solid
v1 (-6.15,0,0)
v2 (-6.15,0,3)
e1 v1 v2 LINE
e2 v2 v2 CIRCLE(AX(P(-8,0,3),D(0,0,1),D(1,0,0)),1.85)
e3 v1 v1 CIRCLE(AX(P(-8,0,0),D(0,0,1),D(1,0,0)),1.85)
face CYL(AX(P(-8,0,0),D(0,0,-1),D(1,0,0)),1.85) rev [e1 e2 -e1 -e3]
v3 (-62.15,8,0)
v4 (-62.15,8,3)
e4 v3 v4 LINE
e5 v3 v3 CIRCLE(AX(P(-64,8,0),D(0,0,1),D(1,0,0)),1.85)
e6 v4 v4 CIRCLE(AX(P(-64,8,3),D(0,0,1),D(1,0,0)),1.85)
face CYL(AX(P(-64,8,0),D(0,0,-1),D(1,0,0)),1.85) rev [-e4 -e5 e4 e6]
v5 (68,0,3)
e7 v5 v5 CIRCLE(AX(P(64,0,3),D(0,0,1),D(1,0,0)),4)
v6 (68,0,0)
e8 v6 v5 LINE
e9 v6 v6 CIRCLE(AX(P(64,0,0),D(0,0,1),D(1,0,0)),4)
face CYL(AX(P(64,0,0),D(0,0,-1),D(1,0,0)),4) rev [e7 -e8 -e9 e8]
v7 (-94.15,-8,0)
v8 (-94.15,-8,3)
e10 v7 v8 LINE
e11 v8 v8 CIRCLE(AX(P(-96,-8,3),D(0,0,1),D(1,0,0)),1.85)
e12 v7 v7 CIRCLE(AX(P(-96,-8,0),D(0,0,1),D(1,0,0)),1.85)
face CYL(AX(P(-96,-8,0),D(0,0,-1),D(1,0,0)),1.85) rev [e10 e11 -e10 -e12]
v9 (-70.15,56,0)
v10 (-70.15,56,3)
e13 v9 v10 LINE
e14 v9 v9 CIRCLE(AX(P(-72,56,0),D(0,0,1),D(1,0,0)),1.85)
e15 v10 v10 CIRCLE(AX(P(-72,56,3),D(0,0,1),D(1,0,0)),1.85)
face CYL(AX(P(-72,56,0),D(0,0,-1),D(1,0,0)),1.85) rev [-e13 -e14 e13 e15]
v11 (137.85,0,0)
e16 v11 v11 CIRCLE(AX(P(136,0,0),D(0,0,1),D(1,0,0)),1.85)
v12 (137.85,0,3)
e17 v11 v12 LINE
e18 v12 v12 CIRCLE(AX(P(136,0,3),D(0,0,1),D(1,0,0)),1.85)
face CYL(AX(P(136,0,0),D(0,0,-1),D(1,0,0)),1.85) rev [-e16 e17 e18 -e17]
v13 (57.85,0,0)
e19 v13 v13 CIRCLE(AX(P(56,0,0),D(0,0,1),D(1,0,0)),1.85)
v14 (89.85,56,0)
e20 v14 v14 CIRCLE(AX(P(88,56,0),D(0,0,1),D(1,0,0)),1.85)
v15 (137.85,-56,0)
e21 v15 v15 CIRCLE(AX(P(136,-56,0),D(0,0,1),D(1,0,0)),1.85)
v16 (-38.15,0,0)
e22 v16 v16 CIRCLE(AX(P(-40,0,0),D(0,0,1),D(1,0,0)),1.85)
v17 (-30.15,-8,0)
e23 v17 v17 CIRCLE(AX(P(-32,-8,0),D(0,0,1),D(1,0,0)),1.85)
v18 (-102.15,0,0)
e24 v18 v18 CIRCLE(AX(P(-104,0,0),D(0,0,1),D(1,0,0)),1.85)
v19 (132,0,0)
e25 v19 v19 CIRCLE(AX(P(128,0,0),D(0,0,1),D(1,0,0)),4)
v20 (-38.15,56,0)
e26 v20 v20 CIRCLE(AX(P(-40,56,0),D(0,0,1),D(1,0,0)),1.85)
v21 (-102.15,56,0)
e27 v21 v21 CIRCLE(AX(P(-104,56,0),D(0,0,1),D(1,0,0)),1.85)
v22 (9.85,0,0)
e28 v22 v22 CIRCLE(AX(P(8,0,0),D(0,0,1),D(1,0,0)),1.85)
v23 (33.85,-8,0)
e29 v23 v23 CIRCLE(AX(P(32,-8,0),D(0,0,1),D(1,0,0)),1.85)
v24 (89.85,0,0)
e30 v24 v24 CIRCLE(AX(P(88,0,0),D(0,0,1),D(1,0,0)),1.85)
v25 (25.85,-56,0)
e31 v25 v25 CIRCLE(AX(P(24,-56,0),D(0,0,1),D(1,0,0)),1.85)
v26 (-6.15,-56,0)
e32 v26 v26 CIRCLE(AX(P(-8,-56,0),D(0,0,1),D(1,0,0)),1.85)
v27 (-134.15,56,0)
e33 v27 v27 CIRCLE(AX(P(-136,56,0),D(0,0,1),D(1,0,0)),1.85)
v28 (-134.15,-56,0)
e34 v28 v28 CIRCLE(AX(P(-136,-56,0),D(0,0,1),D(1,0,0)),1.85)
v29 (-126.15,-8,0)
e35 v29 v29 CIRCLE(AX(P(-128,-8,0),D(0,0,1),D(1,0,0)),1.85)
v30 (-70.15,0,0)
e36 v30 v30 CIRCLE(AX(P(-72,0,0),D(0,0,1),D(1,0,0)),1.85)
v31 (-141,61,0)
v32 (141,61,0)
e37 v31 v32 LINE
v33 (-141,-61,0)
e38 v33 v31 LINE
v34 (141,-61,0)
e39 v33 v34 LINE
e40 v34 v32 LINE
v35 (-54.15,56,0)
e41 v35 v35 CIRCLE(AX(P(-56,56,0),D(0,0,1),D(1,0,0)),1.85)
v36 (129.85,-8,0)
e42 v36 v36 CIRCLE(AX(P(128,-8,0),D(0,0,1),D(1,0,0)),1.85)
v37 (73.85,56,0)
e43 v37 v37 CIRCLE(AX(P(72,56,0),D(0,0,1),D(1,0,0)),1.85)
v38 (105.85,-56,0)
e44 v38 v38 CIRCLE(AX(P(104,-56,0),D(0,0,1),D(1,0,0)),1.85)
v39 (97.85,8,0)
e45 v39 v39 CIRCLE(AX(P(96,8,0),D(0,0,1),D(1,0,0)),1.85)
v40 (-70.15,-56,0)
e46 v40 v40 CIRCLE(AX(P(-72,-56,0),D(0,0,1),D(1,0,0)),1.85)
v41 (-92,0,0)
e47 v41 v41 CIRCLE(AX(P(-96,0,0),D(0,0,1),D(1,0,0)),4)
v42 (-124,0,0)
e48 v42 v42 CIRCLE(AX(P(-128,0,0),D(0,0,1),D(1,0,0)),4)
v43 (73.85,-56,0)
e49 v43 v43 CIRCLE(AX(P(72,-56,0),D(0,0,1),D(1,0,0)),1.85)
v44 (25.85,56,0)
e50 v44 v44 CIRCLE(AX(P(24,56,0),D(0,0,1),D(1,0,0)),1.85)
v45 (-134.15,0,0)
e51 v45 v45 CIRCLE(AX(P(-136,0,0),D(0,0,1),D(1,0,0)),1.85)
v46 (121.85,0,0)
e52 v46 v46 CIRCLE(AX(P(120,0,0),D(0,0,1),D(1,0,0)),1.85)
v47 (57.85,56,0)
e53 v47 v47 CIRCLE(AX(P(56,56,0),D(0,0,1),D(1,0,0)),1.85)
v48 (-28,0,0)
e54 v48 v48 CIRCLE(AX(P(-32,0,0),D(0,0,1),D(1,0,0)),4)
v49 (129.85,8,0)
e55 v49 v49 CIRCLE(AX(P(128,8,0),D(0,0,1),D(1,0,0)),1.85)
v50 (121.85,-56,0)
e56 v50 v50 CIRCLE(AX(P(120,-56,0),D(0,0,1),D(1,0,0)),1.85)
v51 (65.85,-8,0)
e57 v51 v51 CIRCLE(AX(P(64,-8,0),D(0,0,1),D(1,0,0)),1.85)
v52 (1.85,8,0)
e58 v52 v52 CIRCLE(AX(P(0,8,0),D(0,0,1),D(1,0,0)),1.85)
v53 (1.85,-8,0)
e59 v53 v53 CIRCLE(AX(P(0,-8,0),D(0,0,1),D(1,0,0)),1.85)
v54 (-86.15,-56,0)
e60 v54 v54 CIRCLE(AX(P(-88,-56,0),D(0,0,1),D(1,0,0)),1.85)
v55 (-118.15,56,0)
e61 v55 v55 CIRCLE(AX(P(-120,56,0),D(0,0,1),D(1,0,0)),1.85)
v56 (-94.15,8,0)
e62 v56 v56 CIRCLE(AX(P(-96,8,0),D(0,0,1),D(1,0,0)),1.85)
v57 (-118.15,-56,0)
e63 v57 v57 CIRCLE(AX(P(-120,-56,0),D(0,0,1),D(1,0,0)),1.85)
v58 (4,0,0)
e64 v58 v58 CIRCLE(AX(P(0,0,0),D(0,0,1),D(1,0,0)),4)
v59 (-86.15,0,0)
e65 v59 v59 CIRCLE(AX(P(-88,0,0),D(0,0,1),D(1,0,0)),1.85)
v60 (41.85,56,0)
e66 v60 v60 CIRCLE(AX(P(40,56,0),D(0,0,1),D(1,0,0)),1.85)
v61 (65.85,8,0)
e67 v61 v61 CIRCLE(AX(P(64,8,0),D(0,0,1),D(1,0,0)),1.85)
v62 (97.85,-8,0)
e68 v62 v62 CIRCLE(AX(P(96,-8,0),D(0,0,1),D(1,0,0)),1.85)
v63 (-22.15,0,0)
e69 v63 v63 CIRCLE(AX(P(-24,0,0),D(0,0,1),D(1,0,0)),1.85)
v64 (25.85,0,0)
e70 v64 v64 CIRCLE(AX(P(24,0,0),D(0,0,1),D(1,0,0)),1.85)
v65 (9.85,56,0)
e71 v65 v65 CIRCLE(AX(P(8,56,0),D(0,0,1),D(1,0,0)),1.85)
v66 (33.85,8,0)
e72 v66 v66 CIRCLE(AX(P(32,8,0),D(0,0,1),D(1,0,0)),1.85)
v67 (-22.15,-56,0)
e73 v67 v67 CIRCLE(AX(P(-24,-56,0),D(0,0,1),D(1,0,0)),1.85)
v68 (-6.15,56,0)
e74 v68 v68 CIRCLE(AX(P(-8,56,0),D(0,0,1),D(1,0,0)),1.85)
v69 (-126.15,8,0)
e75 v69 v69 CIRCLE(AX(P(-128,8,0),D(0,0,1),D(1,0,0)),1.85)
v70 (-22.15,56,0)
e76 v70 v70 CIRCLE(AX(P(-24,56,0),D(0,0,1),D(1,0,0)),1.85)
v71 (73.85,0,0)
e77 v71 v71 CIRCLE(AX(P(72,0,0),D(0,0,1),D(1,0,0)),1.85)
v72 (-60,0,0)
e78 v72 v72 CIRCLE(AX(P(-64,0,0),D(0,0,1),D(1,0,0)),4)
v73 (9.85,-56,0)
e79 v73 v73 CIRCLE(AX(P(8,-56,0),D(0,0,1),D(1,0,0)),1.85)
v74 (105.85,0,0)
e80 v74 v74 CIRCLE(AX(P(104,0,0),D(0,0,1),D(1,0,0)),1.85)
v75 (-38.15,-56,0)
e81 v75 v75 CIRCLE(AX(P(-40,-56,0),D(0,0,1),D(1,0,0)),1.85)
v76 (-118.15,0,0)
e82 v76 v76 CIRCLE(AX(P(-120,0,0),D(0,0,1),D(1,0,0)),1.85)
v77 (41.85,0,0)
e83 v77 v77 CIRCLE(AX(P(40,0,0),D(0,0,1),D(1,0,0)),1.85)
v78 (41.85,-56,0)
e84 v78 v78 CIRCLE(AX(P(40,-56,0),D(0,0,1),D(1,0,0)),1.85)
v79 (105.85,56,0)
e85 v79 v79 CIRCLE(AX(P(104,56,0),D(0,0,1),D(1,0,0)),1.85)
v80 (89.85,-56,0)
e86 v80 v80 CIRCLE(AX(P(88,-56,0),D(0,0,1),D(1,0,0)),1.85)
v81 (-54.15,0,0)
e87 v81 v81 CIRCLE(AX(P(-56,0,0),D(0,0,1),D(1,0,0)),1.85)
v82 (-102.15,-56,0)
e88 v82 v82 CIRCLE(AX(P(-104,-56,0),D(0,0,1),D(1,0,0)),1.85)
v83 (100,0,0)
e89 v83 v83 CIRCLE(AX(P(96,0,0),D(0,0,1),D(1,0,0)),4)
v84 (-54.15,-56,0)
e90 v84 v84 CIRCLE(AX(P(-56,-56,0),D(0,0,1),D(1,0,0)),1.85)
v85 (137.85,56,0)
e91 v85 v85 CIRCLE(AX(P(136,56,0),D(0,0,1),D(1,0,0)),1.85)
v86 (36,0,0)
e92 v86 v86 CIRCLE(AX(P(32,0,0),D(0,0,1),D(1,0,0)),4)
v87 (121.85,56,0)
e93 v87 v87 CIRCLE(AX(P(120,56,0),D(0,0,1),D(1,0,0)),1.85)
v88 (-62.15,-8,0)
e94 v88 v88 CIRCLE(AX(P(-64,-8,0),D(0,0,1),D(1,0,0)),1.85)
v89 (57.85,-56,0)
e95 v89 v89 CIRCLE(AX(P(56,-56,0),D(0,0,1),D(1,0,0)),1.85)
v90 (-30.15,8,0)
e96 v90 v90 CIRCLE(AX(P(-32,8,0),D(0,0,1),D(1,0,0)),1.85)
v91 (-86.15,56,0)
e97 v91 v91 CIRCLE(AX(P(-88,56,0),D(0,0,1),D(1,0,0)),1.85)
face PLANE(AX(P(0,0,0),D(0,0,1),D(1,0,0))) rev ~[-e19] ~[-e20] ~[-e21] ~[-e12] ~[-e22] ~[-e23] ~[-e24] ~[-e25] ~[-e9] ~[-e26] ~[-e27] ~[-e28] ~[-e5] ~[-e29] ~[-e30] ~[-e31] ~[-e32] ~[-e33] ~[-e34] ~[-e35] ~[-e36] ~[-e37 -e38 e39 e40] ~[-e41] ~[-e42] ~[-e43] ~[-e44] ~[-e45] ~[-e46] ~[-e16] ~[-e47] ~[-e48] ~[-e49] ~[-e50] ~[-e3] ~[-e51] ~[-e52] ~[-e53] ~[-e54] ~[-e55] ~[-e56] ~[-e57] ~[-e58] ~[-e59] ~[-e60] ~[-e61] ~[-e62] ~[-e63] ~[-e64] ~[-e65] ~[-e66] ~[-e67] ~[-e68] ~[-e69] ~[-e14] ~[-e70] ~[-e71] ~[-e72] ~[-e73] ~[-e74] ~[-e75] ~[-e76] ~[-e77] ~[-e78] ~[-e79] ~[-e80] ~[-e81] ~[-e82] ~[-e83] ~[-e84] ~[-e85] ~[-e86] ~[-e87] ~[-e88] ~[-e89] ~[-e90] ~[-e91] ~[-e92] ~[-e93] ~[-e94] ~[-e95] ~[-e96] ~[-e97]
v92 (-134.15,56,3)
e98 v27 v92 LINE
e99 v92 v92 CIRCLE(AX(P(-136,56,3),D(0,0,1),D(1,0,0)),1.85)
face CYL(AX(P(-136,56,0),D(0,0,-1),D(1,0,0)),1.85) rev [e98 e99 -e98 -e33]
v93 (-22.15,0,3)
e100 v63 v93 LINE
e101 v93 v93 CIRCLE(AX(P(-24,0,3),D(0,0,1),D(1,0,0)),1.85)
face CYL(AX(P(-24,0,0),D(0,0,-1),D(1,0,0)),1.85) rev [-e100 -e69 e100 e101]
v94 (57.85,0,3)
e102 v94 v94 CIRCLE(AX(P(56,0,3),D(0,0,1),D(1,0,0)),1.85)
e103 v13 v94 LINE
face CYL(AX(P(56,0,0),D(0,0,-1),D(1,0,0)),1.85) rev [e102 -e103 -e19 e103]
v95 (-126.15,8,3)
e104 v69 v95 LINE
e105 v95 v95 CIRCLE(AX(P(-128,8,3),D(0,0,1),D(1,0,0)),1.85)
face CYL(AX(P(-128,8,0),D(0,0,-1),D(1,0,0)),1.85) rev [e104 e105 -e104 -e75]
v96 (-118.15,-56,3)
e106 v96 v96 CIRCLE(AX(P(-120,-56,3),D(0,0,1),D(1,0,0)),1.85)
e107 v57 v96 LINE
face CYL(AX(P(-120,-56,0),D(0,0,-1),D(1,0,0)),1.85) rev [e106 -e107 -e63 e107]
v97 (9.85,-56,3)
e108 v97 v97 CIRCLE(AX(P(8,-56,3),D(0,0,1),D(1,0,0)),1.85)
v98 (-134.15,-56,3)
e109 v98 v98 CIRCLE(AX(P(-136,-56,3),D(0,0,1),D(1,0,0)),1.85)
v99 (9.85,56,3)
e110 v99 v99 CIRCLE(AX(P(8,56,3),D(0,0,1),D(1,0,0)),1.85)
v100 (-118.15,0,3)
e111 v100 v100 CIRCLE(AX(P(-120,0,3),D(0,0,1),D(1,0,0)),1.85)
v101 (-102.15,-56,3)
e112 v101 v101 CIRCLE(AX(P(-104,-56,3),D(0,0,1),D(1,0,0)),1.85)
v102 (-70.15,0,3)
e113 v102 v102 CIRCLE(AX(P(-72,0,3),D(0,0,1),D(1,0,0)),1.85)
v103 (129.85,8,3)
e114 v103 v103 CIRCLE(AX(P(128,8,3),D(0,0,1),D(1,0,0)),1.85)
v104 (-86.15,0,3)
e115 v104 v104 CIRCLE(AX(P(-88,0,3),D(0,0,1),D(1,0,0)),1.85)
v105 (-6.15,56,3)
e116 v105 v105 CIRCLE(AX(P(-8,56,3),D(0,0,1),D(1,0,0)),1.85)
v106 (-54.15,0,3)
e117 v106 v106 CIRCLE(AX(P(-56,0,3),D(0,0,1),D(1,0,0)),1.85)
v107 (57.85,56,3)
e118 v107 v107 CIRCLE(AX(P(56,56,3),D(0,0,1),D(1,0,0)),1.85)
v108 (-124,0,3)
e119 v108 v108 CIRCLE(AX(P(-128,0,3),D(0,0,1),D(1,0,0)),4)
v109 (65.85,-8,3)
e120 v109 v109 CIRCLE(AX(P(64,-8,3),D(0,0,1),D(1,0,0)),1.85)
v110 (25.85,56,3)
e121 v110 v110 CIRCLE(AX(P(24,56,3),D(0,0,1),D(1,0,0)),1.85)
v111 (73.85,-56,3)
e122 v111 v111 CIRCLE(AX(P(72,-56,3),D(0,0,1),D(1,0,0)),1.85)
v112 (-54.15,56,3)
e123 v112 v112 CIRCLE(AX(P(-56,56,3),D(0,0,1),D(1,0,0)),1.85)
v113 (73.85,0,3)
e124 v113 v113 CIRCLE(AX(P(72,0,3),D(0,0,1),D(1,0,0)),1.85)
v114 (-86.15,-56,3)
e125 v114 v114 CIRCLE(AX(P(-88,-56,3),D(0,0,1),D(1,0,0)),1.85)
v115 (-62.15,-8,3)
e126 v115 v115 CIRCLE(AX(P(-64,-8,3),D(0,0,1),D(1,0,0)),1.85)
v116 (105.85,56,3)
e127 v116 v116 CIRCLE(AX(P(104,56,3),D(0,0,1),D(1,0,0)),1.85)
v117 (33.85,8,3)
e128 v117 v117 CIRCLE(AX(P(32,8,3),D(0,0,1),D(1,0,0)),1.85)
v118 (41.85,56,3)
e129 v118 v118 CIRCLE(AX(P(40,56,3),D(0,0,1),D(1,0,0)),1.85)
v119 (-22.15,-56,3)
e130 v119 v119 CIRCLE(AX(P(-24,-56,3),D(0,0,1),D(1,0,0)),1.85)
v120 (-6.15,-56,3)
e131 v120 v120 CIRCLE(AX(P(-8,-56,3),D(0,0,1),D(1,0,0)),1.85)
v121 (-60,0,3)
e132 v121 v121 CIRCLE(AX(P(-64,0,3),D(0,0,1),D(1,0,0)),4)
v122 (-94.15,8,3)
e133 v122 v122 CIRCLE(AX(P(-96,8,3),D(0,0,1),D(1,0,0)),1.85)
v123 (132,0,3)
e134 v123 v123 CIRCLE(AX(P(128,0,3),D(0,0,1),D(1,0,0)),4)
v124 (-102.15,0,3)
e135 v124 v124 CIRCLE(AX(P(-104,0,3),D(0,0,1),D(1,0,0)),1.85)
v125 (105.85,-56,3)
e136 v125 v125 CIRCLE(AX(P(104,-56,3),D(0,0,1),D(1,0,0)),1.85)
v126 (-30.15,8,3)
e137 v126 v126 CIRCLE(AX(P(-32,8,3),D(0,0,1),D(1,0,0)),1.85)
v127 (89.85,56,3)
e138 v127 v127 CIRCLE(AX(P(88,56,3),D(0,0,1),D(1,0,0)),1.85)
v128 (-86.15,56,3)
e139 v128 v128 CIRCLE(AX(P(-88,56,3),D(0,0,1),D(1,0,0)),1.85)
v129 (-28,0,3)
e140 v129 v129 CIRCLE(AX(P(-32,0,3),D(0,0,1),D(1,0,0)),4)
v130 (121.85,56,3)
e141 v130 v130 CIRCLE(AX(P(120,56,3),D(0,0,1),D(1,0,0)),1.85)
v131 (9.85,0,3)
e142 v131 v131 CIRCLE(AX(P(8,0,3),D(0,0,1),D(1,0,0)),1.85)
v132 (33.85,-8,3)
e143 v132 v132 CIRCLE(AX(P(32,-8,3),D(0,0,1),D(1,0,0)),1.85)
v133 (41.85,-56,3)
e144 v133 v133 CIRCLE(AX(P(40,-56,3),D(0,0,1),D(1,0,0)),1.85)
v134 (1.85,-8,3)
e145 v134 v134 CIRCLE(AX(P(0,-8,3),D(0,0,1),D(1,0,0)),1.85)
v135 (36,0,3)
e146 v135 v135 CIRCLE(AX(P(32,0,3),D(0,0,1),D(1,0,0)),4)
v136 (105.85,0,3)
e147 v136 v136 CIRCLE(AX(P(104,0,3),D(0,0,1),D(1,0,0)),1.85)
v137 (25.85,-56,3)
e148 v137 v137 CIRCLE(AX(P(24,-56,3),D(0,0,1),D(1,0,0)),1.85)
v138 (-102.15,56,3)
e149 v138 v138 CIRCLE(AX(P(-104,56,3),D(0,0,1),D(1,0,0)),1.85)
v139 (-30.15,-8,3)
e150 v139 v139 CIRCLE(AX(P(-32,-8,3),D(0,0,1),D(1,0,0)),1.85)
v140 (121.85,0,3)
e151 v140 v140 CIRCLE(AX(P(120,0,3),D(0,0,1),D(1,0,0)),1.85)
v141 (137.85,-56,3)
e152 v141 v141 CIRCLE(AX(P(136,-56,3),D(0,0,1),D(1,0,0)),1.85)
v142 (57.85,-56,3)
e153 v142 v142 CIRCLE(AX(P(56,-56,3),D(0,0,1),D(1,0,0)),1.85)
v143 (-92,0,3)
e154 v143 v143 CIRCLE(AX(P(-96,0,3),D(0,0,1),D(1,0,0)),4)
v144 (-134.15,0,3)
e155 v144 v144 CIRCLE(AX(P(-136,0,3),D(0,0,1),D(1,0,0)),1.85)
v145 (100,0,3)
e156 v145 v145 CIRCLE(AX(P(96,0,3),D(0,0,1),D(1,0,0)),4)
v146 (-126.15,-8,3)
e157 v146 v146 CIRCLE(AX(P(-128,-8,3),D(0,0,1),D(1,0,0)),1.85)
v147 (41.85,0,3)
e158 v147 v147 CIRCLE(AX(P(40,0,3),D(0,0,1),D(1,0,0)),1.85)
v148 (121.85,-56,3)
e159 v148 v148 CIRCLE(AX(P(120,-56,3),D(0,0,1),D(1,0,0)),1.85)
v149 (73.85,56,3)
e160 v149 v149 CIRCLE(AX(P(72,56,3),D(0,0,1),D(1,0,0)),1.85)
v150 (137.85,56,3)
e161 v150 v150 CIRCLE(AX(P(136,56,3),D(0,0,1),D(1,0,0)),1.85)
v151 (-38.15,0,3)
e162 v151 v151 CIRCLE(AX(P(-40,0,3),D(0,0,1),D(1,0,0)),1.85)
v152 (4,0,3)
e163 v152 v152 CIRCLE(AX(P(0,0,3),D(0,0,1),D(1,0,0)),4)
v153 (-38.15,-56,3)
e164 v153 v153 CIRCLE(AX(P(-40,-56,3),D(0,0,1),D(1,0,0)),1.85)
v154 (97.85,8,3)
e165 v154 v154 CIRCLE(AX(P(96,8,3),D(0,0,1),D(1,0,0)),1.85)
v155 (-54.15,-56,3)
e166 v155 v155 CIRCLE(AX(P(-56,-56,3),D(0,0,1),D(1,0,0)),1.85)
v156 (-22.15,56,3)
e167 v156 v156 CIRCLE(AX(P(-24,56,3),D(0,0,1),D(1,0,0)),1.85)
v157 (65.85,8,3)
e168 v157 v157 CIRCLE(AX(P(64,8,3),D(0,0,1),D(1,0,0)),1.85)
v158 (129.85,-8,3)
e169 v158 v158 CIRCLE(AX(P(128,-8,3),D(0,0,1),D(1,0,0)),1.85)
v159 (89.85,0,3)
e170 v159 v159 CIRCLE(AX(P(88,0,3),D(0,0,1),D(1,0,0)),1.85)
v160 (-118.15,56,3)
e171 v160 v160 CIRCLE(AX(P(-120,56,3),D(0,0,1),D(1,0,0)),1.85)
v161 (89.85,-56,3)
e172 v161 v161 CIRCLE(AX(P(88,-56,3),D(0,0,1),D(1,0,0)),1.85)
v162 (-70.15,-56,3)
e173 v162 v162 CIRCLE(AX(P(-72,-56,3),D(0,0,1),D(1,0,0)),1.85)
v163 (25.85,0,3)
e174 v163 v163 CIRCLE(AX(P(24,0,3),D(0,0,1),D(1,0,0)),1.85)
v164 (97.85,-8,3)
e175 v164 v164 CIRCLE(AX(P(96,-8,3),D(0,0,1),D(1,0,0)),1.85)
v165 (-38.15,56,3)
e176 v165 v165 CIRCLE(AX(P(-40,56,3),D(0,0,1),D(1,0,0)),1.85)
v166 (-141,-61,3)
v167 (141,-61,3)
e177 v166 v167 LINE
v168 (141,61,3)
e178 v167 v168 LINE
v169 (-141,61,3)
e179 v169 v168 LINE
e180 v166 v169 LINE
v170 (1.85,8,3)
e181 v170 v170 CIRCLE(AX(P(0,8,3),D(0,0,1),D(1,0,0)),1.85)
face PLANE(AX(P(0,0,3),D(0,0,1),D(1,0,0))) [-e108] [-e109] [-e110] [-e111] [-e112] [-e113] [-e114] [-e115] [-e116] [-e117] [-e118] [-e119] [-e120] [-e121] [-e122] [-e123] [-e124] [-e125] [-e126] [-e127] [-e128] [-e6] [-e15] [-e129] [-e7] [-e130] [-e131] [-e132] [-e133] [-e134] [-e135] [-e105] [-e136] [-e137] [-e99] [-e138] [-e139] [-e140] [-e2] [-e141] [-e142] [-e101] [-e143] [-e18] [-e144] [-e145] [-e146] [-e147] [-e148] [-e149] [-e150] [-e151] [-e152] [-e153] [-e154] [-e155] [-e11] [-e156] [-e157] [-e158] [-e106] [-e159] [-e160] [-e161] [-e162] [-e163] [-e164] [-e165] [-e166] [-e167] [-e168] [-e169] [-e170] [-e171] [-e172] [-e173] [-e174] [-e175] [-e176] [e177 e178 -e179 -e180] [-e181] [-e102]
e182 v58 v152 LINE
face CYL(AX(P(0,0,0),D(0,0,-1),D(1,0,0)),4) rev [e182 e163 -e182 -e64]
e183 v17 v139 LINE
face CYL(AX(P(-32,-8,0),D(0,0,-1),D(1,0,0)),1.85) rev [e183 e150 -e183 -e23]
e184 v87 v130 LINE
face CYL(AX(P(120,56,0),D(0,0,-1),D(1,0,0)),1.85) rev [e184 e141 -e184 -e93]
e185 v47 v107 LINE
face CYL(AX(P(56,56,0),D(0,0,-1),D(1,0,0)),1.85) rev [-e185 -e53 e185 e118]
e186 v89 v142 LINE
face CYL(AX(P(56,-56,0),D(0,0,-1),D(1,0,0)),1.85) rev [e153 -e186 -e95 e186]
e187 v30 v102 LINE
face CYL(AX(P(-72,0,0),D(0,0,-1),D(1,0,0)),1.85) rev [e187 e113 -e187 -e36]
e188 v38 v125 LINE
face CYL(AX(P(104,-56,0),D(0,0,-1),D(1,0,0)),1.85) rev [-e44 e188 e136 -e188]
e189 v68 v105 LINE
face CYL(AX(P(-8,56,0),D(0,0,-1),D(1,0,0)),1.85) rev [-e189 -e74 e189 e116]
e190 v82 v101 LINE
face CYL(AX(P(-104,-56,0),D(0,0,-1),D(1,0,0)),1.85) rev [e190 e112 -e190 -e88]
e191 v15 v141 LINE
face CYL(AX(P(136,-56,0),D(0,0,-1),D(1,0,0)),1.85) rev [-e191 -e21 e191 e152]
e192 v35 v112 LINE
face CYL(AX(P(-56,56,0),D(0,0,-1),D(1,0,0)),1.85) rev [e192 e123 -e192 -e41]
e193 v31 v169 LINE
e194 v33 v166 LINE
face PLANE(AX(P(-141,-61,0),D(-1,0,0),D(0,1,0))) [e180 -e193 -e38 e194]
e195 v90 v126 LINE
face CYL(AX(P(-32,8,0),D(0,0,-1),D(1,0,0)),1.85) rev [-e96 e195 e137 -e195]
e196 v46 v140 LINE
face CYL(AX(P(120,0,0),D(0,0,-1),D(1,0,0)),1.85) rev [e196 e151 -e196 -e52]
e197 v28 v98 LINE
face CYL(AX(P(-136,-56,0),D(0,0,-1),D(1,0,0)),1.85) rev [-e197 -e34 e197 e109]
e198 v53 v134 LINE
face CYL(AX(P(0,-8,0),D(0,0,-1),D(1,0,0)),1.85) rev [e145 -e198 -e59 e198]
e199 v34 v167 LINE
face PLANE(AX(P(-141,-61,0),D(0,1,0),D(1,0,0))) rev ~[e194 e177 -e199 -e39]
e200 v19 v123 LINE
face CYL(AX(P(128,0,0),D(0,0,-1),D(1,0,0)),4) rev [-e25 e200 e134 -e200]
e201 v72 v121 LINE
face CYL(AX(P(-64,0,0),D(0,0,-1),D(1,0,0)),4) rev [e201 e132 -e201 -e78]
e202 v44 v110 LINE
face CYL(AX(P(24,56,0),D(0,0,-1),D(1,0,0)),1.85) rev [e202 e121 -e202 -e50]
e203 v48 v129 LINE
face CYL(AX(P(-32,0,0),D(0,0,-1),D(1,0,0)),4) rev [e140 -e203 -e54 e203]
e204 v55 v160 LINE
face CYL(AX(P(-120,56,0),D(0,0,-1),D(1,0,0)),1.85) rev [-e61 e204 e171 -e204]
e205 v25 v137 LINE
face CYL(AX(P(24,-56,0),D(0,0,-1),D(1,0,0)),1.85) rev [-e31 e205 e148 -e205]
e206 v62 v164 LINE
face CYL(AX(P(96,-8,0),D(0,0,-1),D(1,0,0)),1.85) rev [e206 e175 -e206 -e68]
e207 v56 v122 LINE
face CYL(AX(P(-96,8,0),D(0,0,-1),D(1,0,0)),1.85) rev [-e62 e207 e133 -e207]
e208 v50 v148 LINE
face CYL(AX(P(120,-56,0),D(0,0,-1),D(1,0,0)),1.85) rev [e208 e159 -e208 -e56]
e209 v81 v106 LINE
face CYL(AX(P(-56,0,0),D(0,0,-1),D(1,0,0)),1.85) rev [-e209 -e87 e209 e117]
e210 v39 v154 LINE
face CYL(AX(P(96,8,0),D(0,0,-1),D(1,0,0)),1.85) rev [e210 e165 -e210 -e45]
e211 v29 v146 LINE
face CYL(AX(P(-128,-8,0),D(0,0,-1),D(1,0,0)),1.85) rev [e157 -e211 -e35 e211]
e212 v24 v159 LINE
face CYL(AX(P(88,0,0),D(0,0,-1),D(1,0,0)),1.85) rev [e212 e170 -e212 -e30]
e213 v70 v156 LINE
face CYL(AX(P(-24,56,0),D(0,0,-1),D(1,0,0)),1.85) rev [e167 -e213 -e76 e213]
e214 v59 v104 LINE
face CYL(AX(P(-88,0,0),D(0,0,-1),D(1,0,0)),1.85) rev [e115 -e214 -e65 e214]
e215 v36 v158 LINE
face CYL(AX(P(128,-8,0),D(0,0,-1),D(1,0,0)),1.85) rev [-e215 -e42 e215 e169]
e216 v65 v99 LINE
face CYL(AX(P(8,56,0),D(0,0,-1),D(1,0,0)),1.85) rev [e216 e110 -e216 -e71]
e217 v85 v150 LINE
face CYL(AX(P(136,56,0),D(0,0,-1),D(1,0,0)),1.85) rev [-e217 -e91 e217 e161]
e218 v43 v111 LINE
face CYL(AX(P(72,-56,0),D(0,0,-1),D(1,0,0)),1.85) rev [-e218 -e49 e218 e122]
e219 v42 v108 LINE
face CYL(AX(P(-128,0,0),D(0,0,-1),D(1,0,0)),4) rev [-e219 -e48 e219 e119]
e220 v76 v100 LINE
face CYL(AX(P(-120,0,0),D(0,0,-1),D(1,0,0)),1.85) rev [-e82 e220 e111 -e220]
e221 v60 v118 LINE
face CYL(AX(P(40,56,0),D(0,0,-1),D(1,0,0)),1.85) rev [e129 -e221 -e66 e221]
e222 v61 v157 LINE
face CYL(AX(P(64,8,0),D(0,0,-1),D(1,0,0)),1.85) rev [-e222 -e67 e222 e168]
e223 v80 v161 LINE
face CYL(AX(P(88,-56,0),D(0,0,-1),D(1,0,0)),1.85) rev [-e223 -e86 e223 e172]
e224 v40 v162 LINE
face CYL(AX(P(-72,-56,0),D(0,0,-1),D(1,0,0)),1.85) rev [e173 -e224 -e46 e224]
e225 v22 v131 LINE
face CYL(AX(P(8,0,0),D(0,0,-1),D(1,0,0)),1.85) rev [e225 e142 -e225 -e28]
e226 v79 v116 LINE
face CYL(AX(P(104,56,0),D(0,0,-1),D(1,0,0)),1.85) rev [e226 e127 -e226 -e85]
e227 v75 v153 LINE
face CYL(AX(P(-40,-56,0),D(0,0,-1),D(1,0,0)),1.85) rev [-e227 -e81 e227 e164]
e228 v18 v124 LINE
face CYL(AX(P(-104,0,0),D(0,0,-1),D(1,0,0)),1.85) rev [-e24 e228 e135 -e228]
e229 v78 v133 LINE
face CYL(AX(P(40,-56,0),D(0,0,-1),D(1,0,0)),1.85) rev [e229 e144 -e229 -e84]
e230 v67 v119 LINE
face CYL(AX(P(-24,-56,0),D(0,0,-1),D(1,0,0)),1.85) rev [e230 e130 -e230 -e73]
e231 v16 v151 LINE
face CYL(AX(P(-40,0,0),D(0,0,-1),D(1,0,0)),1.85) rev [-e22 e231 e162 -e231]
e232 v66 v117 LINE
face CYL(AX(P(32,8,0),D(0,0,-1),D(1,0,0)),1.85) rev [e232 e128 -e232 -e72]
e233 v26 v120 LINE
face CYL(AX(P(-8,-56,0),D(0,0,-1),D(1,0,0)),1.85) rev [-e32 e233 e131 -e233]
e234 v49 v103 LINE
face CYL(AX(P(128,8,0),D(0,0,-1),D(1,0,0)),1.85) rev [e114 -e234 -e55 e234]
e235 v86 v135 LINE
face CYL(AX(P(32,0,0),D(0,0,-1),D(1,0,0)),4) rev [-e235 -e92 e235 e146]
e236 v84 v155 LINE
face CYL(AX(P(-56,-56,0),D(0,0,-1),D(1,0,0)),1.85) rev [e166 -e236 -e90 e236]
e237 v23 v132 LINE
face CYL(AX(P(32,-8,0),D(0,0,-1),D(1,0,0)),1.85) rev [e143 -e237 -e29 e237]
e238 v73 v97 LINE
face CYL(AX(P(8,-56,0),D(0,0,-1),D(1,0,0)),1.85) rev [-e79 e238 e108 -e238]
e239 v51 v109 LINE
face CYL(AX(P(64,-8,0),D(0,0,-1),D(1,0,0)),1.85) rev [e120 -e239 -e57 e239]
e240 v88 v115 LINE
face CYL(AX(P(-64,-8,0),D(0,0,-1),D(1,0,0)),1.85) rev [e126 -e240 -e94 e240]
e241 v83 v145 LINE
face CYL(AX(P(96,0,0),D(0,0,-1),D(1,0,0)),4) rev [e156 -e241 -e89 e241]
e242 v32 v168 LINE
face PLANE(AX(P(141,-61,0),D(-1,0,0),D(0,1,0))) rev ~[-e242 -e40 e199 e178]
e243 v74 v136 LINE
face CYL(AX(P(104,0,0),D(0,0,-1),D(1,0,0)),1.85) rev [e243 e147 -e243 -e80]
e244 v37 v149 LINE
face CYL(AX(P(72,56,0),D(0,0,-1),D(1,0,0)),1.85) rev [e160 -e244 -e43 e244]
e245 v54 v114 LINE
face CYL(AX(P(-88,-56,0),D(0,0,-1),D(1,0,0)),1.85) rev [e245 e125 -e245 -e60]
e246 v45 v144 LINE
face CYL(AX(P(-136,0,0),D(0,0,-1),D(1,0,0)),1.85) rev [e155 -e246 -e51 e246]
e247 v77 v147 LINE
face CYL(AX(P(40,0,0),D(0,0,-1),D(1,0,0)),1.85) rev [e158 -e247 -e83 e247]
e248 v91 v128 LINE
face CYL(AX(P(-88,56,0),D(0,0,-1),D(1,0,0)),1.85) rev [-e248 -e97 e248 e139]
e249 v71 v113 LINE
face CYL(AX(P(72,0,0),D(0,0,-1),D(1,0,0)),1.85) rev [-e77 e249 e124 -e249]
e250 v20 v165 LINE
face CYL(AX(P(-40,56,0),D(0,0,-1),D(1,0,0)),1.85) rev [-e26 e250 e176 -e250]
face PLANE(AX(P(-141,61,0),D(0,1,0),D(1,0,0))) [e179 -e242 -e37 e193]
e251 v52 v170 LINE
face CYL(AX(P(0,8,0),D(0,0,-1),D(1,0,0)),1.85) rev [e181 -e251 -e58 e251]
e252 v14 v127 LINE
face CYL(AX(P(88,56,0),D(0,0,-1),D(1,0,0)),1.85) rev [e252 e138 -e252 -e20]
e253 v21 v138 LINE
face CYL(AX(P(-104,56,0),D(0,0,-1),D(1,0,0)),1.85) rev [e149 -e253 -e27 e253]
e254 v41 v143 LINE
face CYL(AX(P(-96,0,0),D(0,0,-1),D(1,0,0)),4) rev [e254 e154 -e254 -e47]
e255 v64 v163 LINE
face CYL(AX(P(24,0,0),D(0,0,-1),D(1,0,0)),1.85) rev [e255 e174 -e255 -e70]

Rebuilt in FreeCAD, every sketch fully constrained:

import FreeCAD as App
import Part
import Sketcher

V = App.Vector

doc = App.newDocument("Part")
body = doc.addObject("PartDesign::Body", "Body")

# Sketch on XY plane
sketch1 = doc.addObject("Sketcher::SketchObject", "Sketch")
body.addObject(sketch1)
sketch1.AttachmentSupport = (doc.XY_Plane, [""])
sketch1.MapMode = "FlatFace"
sketch1.addGeometry(Part.LineSegment(V(-141, 61, 0), V(-141, -61, 0)), False)
sketch1.addGeometry(Part.LineSegment(V(-141, -61, 0), V(141, -61, 0)), False)
sketch1.addGeometry(Part.LineSegment(V(141, -61, 0), V(141, 61, 0)), False)
sketch1.addGeometry(Part.LineSegment(V(141, 61, 0), V(-141, 61, 0)), False)
sketch1.addGeometry(Part.Circle(V(-136, -56, 0), V(0, 0, 1), 1.9), False)
sketch1.addGeometry(Part.Circle(V(-120, -56, 0), V(0, 0, 1), 1.9), False)
sketch1.addGeometry(Part.Circle(V(-104, -56, 0), V(0, 0, 1), 1.9), False)
sketch1.addGeometry(Part.Circle(V(-88, -56, 0), V(0, 0, 1), 1.9), False)
sketch1.addGeometry(Part.Circle(V(-72, -56, 0), V(0, 0, 1), 1.9), False)
sketch1.addGeometry(Part.Circle(V(-56, -56, 0), V(0, 0, 1), 1.9), False)
sketch1.addGeometry(Part.Circle(V(-40, -56, 0), V(0, 0, 1), 1.9), False)
sketch1.addGeometry(Part.Circle(V(-24, -56, 0), V(0, 0, 1), 1.9), False)
sketch1.addGeometry(Part.Circle(V(-8, -56, 0), V(0, 0, 1), 1.9), False)
sketch1.addGeometry(Part.Circle(V(-128, -8, 0), V(0, 0, 1), 1.9), False)
sketch1.addGeometry(Part.Circle(V(-136, 0, 0), V(0, 0, 1), 1.9), False)
sketch1.addGeometry(Part.Circle(V(-128, 0, 0), V(0, 0, 1), 4), False)
sketch1.addGeometry(Part.Circle(V(-120, 0, 0), V(0, 0, 1), 1.9), False)
sketch1.addGeometry(Part.Circle(V(-104, 0, 0), V(0, 0, 1), 1.9), False)
sketch1.addGeometry(Part.Circle(V(-96, -8, 0), V(0, 0, 1), 1.9), False)
sketch1.addGeometry(Part.Circle(V(-96, 0, 0), V(0, 0, 1), 4), False)
sketch1.addGeometry(Part.Circle(V(-88, 0, 0), V(0, 0, 1), 1.9), False)
sketch1.addGeometry(Part.Circle(V(-72, 0, 0), V(0, 0, 1), 1.9), False)
sketch1.addGeometry(Part.Circle(V(-64, -8, 0), V(0, 0, 1), 1.9), False)
sketch1.addGeometry(Part.Circle(V(-64, 0, 0), V(0, 0, 1), 4), False)
sketch1.addGeometry(Part.Circle(V(-56, 0, 0), V(0, 0, 1), 1.9), False)
sketch1.addGeometry(Part.Circle(V(-40, 0, 0), V(0, 0, 1), 1.9), False)
sketch1.addGeometry(Part.Circle(V(-32, -8, 0), V(0, 0, 1), 1.9), False)
sketch1.addGeometry(Part.Circle(V(-32, 0, 0), V(0, 0, 1), 4), False)
sketch1.addGeometry(Part.Circle(V(-24, 0, 0), V(0, 0, 1), 1.9), False)
sketch1.addGeometry(Part.Circle(V(-8, 0, 0), V(0, 0, 1), 1.9), False)
sketch1.addGeometry(Part.Circle(V(8, -56, 0), V(0, 0, 1), 1.9), False)
sketch1.addGeometry(Part.Circle(V(24, -56, 0), V(0, 0, 1), 1.9), False)
sketch1.addGeometry(Part.Circle(V(40, -56, 0), V(0, 0, 1), 1.9), False)
sketch1.addGeometry(Part.Circle(V(56, -56, 0), V(0, 0, 1), 1.9), False)
sketch1.addGeometry(Part.Circle(V(72, -56, 0), V(0, 0, 1), 1.9), False)
sketch1.addGeometry(Part.Circle(V(88, -56, 0), V(0, 0, 1), 1.9), False)
sketch1.addGeometry(Part.Circle(V(104, -56, 0), V(0, 0, 1), 1.9), False)
sketch1.addGeometry(Part.Circle(V(120, -56, 0), V(0, 0, 1), 1.9), False)
sketch1.addGeometry(Part.Circle(V(136, -56, 0), V(0, 0, 1), 1.9), False)
sketch1.addGeometry(Part.Circle(V(0, -8, 0), V(0, 0, 1), 1.9), False)
sketch1.addGeometry(Part.Circle(V(32, -8, 0), V(0, 0, 1), 1.9), False)
sketch1.addGeometry(Part.Circle(V(0, 0, 0), V(0, 0, 1), 4), False)
sketch1.addGeometry(Part.Circle(V(8, 0, 0), V(0, 0, 1), 1.9), False)
sketch1.addGeometry(Part.Circle(V(24, 0, 0), V(0, 0, 1), 1.9), False)
sketch1.addGeometry(Part.Circle(V(32, 0, 0), V(0, 0, 1), 4), False)
sketch1.addGeometry(Part.Circle(V(64, -8, 0), V(0, 0, 1), 1.9), False)
sketch1.addGeometry(Part.Circle(V(40, 0, 0), V(0, 0, 1), 1.9), False)
sketch1.addGeometry(Part.Circle(V(56, 0, 0), V(0, 0, 1), 1.9), False)
sketch1.addGeometry(Part.Circle(V(64, 0, 0), V(0, 0, 1), 4), False)
sketch1.addGeometry(Part.Circle(V(96, -8, 0), V(0, 0, 1), 1.9), False)
sketch1.addGeometry(Part.Circle(V(72, 0, 0), V(0, 0, 1), 1.9), False)
sketch1.addGeometry(Part.Circle(V(88, 0, 0), V(0, 0, 1), 1.9), False)
sketch1.addGeometry(Part.Circle(V(96, 0, 0), V(0, 0, 1), 4), False)
sketch1.addGeometry(Part.Circle(V(128, -8, 0), V(0, 0, 1), 1.9), False)
sketch1.addGeometry(Part.Circle(V(104, 0, 0), V(0, 0, 1), 1.9), False)
sketch1.addGeometry(Part.Circle(V(120, 0, 0), V(0, 0, 1), 1.9), False)
sketch1.addGeometry(Part.Circle(V(128, 0, 0), V(0, 0, 1), 4), False)
sketch1.addGeometry(Part.Circle(V(136, 0, 0), V(0, 0, 1), 1.9), False)
sketch1.addGeometry(Part.Circle(V(-128, 8, 0), V(0, 0, 1), 1.9), False)
sketch1.addGeometry(Part.Circle(V(-96, 8, 0), V(0, 0, 1), 1.9), False)
sketch1.addGeometry(Part.Circle(V(-64, 8, 0), V(0, 0, 1), 1.9), False)
sketch1.addGeometry(Part.Circle(V(-32, 8, 0), V(0, 0, 1), 1.9), False)
sketch1.addGeometry(Part.Circle(V(-136, 56, 0), V(0, 0, 1), 1.9), False)
sketch1.addGeometry(Part.Circle(V(-120, 56, 0), V(0, 0, 1), 1.9), False)
sketch1.addGeometry(Part.Circle(V(-104, 56, 0), V(0, 0, 1), 1.9), False)
sketch1.addGeometry(Part.Circle(V(-88, 56, 0), V(0, 0, 1), 1.9), False)
sketch1.addGeometry(Part.Circle(V(-72, 56, 0), V(0, 0, 1), 1.9), False)
sketch1.addGeometry(Part.Circle(V(-56, 56, 0), V(0, 0, 1), 1.9), False)
sketch1.addGeometry(Part.Circle(V(-40, 56, 0), V(0, 0, 1), 1.9), False)
sketch1.addGeometry(Part.Circle(V(-24, 56, 0), V(0, 0, 1), 1.9), False)
sketch1.addGeometry(Part.Circle(V(-8, 56, 0), V(0, 0, 1), 1.9), False)
sketch1.addGeometry(Part.Circle(V(0, 8, 0), V(0, 0, 1), 1.9), False)
sketch1.addGeometry(Part.Circle(V(32, 8, 0), V(0, 0, 1), 1.9), False)
sketch1.addGeometry(Part.Circle(V(64, 8, 0), V(0, 0, 1), 1.9), False)
sketch1.addGeometry(Part.Circle(V(96, 8, 0), V(0, 0, 1), 1.9), False)
sketch1.addGeometry(Part.Circle(V(128, 8, 0), V(0, 0, 1), 1.9), False)
sketch1.addGeometry(Part.Circle(V(8, 56, 0), V(0, 0, 1), 1.9), False)
sketch1.addGeometry(Part.Circle(V(24, 56, 0), V(0, 0, 1), 1.9), False)
sketch1.addGeometry(Part.Circle(V(40, 56, 0), V(0, 0, 1), 1.9), False)
sketch1.addGeometry(Part.Circle(V(56, 56, 0), V(0, 0, 1), 1.9), False)
sketch1.addGeometry(Part.Circle(V(72, 56, 0), V(0, 0, 1), 1.9), False)
sketch1.addGeometry(Part.Circle(V(88, 56, 0), V(0, 0, 1), 1.9), False)
sketch1.addGeometry(Part.Circle(V(104, 56, 0), V(0, 0, 1), 1.9), False)
sketch1.addGeometry(Part.Circle(V(120, 56, 0), V(0, 0, 1), 1.9), False)
sketch1.addGeometry(Part.Circle(V(136, 56, 0), V(0, 0, 1), 1.9), False)
sketch1.addConstraint(Sketcher.Constraint("Coincident", 0, 2, 1, 1))
sketch1.addConstraint(Sketcher.Constraint("Coincident", 1, 2, 2, 1))
sketch1.addConstraint(Sketcher.Constraint("Coincident", 2, 2, 3, 1))
sketch1.addConstraint(Sketcher.Constraint("Coincident", 3, 2, 0, 1))
sketch1.addConstraint(Sketcher.Constraint("Vertical", 0))
sketch1.addConstraint(Sketcher.Constraint("Horizontal", 1))
sketch1.addConstraint(Sketcher.Constraint("Vertical", 2))
sketch1.addConstraint(Sketcher.Constraint("Horizontal", 3))
sketch1.addConstraint(Sketcher.Constraint("Coincident", 41, 3, -1, 1))
sketch1.addConstraint(Sketcher.Constraint("Equal", 4, 5))
sketch1.addConstraint(Sketcher.Constraint("Equal", 5, 6))
sketch1.addConstraint(Sketcher.Constraint("Equal", 6, 7))
sketch1.addConstraint(Sketcher.Constraint("Equal", 7, 8))
sketch1.addConstraint(Sketcher.Constraint("Equal", 8, 9))
sketch1.addConstraint(Sketcher.Constraint("Equal", 9, 10))
sketch1.addConstraint(Sketcher.Constraint("Equal", 10, 11))
sketch1.addConstraint(Sketcher.Constraint("Equal", 11, 12))
sketch1.addConstraint(Sketcher.Constraint("Equal", 12, 13))
sketch1.addConstraint(Sketcher.Constraint("Equal", 13, 14))
sketch1.addConstraint(Sketcher.Constraint("Equal", 14, 16))
sketch1.addConstraint(Sketcher.Constraint("Equal", 16, 17))
sketch1.addConstraint(Sketcher.Constraint("Equal", 17, 18))
sketch1.addConstraint(Sketcher.Constraint("Equal", 15, 19))
sketch1.addConstraint(Sketcher.Constraint("Equal", 18, 20))
sketch1.addConstraint(Sketcher.Constraint("Equal", 20, 21))
sketch1.addConstraint(Sketcher.Constraint("Equal", 21, 22))
sketch1.addConstraint(Sketcher.Constraint("Equal", 19, 23))
sketch1.addConstraint(Sketcher.Constraint("Equal", 22, 24))
sketch1.addConstraint(Sketcher.Constraint("Equal", 24, 25))
sketch1.addConstraint(Sketcher.Constraint("Equal", 25, 26))
sketch1.addConstraint(Sketcher.Constraint("Equal", 23, 27))
sketch1.addConstraint(Sketcher.Constraint("Equal", 26, 28))
sketch1.addConstraint(Sketcher.Constraint("Equal", 28, 29))
sketch1.addConstraint(Sketcher.Constraint("Equal", 29, 30))
sketch1.addConstraint(Sketcher.Constraint("Equal", 30, 31))
sketch1.addConstraint(Sketcher.Constraint("Equal", 31, 32))
sketch1.addConstraint(Sketcher.Constraint("Equal", 32, 33))
sketch1.addConstraint(Sketcher.Constraint("Equal", 33, 34))
sketch1.addConstraint(Sketcher.Constraint("Equal", 34, 35))
sketch1.addConstraint(Sketcher.Constraint("Equal", 35, 36))
sketch1.addConstraint(Sketcher.Constraint("Equal", 36, 37))
sketch1.addConstraint(Sketcher.Constraint("Equal", 37, 38))
sketch1.addConstraint(Sketcher.Constraint("Equal", 38, 39))
sketch1.addConstraint(Sketcher.Constraint("Equal", 39, 40))
sketch1.addConstraint(Sketcher.Constraint("Equal", 27, 41))
sketch1.addConstraint(Sketcher.Constraint("Equal", 40, 42))
sketch1.addConstraint(Sketcher.Constraint("Equal", 42, 43))
sketch1.addConstraint(Sketcher.Constraint("Equal", 41, 44))
sketch1.addConstraint(Sketcher.Constraint("Equal", 43, 45))
sketch1.addConstraint(Sketcher.Constraint("Equal", 45, 46))
sketch1.addConstraint(Sketcher.Constraint("Equal", 46, 47))
sketch1.addConstraint(Sketcher.Constraint("Equal", 44, 48))
sketch1.addConstraint(Sketcher.Constraint("Equal", 47, 49))
sketch1.addConstraint(Sketcher.Constraint("Equal", 49, 50))
sketch1.addConstraint(Sketcher.Constraint("Equal", 50, 51))
sketch1.addConstraint(Sketcher.Constraint("Equal", 48, 52))
sketch1.addConstraint(Sketcher.Constraint("Equal", 51, 53))
sketch1.addConstraint(Sketcher.Constraint("Equal", 53, 54))
sketch1.addConstraint(Sketcher.Constraint("Equal", 54, 55))
sketch1.addConstraint(Sketcher.Constraint("Equal", 52, 56))
sketch1.addConstraint(Sketcher.Constraint("Equal", 55, 57))
sketch1.addConstraint(Sketcher.Constraint("Equal", 57, 58))
sketch1.addConstraint(Sketcher.Constraint("Equal", 58, 59))
sketch1.addConstraint(Sketcher.Constraint("Equal", 59, 60))
sketch1.addConstraint(Sketcher.Constraint("Equal", 60, 61))
sketch1.addConstraint(Sketcher.Constraint("Equal", 61, 62))
sketch1.addConstraint(Sketcher.Constraint("Equal", 62, 63))
sketch1.addConstraint(Sketcher.Constraint("Equal", 63, 64))
sketch1.addConstraint(Sketcher.Constraint("Equal", 64, 65))
sketch1.addConstraint(Sketcher.Constraint("Equal", 65, 66))
sketch1.addConstraint(Sketcher.Constraint("Equal", 66, 67))
sketch1.addConstraint(Sketcher.Constraint("Equal", 67, 68))
sketch1.addConstraint(Sketcher.Constraint("Equal", 68, 69))
sketch1.addConstraint(Sketcher.Constraint("Equal", 69, 70))
sketch1.addConstraint(Sketcher.Constraint("Equal", 70, 71))
sketch1.addConstraint(Sketcher.Constraint("Equal", 71, 72))
sketch1.addConstraint(Sketcher.Constraint("Equal", 72, 73))
sketch1.addConstraint(Sketcher.Constraint("Equal", 73, 74))
sketch1.addConstraint(Sketcher.Constraint("Equal", 74, 75))
sketch1.addConstraint(Sketcher.Constraint("Equal", 75, 76))
sketch1.addConstraint(Sketcher.Constraint("Equal", 76, 77))
sketch1.addConstraint(Sketcher.Constraint("Equal", 77, 78))
sketch1.addConstraint(Sketcher.Constraint("Equal", 78, 79))
sketch1.addConstraint(Sketcher.Constraint("Equal", 79, 80))
sketch1.addConstraint(Sketcher.Constraint("Equal", 80, 81))
sketch1.addConstraint(Sketcher.Constraint("Equal", 81, 82))
sketch1.addConstraint(Sketcher.Constraint("Equal", 82, 83))
sketch1.addConstraint(Sketcher.Constraint("Equal", 83, 84))
sketch1.addConstraint(Sketcher.Constraint("Symmetric", 29, 3, 42, 3, -1, 1))
sketch1.addConstraint(Sketcher.Constraint("Symmetric", 28, 3, 43, 3, -1, 1))
sketch1.addConstraint(Sketcher.Constraint("Symmetric", 27, 3, 44, 3, -1, 1))
sketch1.addConstraint(Sketcher.Constraint("Symmetric", 25, 3, 46, 3, -1, 1))
sketch1.addConstraint(Sketcher.Constraint("Symmetric", 24, 3, 47, 3, -1, 1))
sketch1.addConstraint(Sketcher.Constraint("Symmetric", 23, 3, 48, 3, -1, 1))
sketch1.addConstraint(Sketcher.Constraint("Symmetric", 21, 3, 50, 3, -1, 1))
sketch1.addConstraint(Sketcher.Constraint("Symmetric", 20, 3, 51, 3, -1, 1))
sketch1.addConstraint(Sketcher.Constraint("Symmetric", 19, 3, 52, 3, -1, 1))
sketch1.addConstraint(Sketcher.Constraint("Symmetric", 17, 3, 54, 3, -1, 1))
sketch1.addConstraint(Sketcher.Constraint("Symmetric", 16, 3, 55, 3, -1, 1))
sketch1.addConstraint(Sketcher.Constraint("Symmetric", 15, 3, 56, 3, -1, 1))
sketch1.addConstraint(Sketcher.Constraint("Symmetric", 14, 3, 57, 3, -1, 1))
sketch1.addConstraint(Sketcher.Constraint("Symmetric", 53, 3, 58, 3, -1, 1))
sketch1.addConstraint(Sketcher.Constraint("Symmetric", 49, 3, 59, 3, -1, 1))
sketch1.addConstraint(Sketcher.Constraint("Symmetric", 45, 3, 60, 3, -1, 1))
sketch1.addConstraint(Sketcher.Constraint("Symmetric", 40, 3, 61, 3, -1, 1))
sketch1.addConstraint(Sketcher.Constraint("Symmetric", 38, 3, 62, 3, -1, 1))
sketch1.addConstraint(Sketcher.Constraint("Symmetric", 37, 3, 63, 3, -1, 1))
sketch1.addConstraint(Sketcher.Constraint("Symmetric", 36, 3, 64, 3, -1, 1))
sketch1.addConstraint(Sketcher.Constraint("Symmetric", 35, 3, 65, 3, -1, 1))
sketch1.addConstraint(Sketcher.Constraint("Symmetric", 34, 3, 66, 3, -1, 1))
sketch1.addConstraint(Sketcher.Constraint("Symmetric", 33, 3, 67, 3, -1, 1))
sketch1.addConstraint(Sketcher.Constraint("Symmetric", 32, 3, 68, 3, -1, 1))
sketch1.addConstraint(Sketcher.Constraint("Symmetric", 31, 3, 69, 3, -1, 1))
sketch1.addConstraint(Sketcher.Constraint("Symmetric", 30, 3, 70, 3, -1, 1))
sketch1.addConstraint(Sketcher.Constraint("Symmetric", 39, 3, 71, 3, -1, 1))
sketch1.addConstraint(Sketcher.Constraint("Symmetric", 26, 3, 72, 3, -1, 1))
sketch1.addConstraint(Sketcher.Constraint("Symmetric", 22, 3, 73, 3, -1, 1))
sketch1.addConstraint(Sketcher.Constraint("Symmetric", 18, 3, 74, 3, -1, 1))
sketch1.addConstraint(Sketcher.Constraint("Symmetric", 13, 3, 75, 3, -1, 1))
sketch1.addConstraint(Sketcher.Constraint("Symmetric", 12, 3, 76, 3, -1, 1))
sketch1.addConstraint(Sketcher.Constraint("Symmetric", 11, 3, 77, 3, -1, 1))
sketch1.addConstraint(Sketcher.Constraint("Symmetric", 10, 3, 78, 3, -1, 1))
sketch1.addConstraint(Sketcher.Constraint("Symmetric", 9, 3, 79, 3, -1, 1))
sketch1.addConstraint(Sketcher.Constraint("Symmetric", 8, 3, 80, 3, -1, 1))
sketch1.addConstraint(Sketcher.Constraint("Symmetric", 7, 3, 81, 3, -1, 1))
sketch1.addConstraint(Sketcher.Constraint("Symmetric", 6, 3, 82, 3, -1, 1))
sketch1.addConstraint(Sketcher.Constraint("Symmetric", 5, 3, 83, 3, -1, 1))
sketch1.addConstraint(Sketcher.Constraint("Symmetric", 4, 3, 84, 3, -1, 1))
sketch1.addConstraint(Sketcher.Constraint("Symmetric", 0, 2, 2, 2, -1, 1))
sketch1.addConstraint(Sketcher.Constraint("Symmetric", 12, 3, 30, 3, -2))
sketch1.addConstraint(Sketcher.Constraint("Symmetric", 11, 3, 31, 3, -2))
sketch1.addConstraint(Sketcher.Constraint("Symmetric", 10, 3, 32, 3, -2))
sketch1.addConstraint(Sketcher.Constraint("Symmetric", 9, 3, 33, 3, -2))
sketch1.addConstraint(Sketcher.Constraint("Symmetric", 8, 3, 34, 3, -2))
sketch1.addConstraint(Sketcher.Constraint("Symmetric", 7, 3, 35, 3, -2))
sketch1.addConstraint(Sketcher.Constraint("Symmetric", 6, 3, 36, 3, -2))
sketch1.addConstraint(Sketcher.Constraint("Symmetric", 5, 3, 37, 3, -2))
sketch1.addConstraint(Sketcher.Constraint("Symmetric", 4, 3, 38, 3, -2))
sketch1.addConstraint(Sketcher.Constraint("Symmetric", 26, 3, 40, 3, -2))
sketch1.addConstraint(Sketcher.Constraint("Symmetric", 22, 3, 45, 3, -2))
sketch1.addConstraint(Sketcher.Constraint("Symmetric", 18, 3, 49, 3, -2))
sketch1.addConstraint(Sketcher.Constraint("Symmetric", 13, 3, 53, 3, -2))
sketch1.addConstraint(Sketcher.Constraint("PointOnObject", 14, 3, -1))
sketch1.addConstraint(Sketcher.Constraint("PointOnObject", 15, 3, -1))
sketch1.addConstraint(Sketcher.Constraint("PointOnObject", 16, 3, -1))
sketch1.addConstraint(Sketcher.Constraint("PointOnObject", 17, 3, -1))
sketch1.addConstraint(Sketcher.Constraint("PointOnObject", 19, 3, -1))
sketch1.addConstraint(Sketcher.Constraint("PointOnObject", 20, 3, -1))
sketch1.addConstraint(Sketcher.Constraint("PointOnObject", 21, 3, -1))
sketch1.addConstraint(Sketcher.Constraint("PointOnObject", 23, 3, -1))
sketch1.addConstraint(Sketcher.Constraint("PointOnObject", 24, 3, -1))
sketch1.addConstraint(Sketcher.Constraint("PointOnObject", 25, 3, -1))
sketch1.addConstraint(Sketcher.Constraint("PointOnObject", 27, 3, -1))
sketch1.addConstraint(Sketcher.Constraint("PointOnObject", 28, 3, -1))
sketch1.addConstraint(Sketcher.Constraint("PointOnObject", 29, 3, -1))
sketch1.addConstraint(Sketcher.Constraint("PointOnObject", 39, 3, -2))
sketch1.addConstraint(Sketcher.Constraint("Horizontal", 4, 3, 5, 3))
sketch1.addConstraint(Sketcher.Constraint("Horizontal", 5, 3, 6, 3))
sketch1.addConstraint(Sketcher.Constraint("Horizontal", 6, 3, 7, 3))
sketch1.addConstraint(Sketcher.Constraint("Horizontal", 7, 3, 8, 3))
sketch1.addConstraint(Sketcher.Constraint("Horizontal", 8, 3, 9, 3))
sketch1.addConstraint(Sketcher.Constraint("Horizontal", 9, 3, 10, 3))
sketch1.addConstraint(Sketcher.Constraint("Horizontal", 10, 3, 11, 3))
sketch1.addConstraint(Sketcher.Constraint("Horizontal", 11, 3, 12, 3))
sketch1.addConstraint(Sketcher.Constraint("Horizontal", 13, 3, 18, 3))
sketch1.addConstraint(Sketcher.Constraint("Horizontal", 18, 3, 22, 3))
sketch1.addConstraint(Sketcher.Constraint("Horizontal", 22, 3, 26, 3))
sketch1.addConstraint(Sketcher.Constraint("Horizontal", 26, 3, 39, 3))
sketch1.addConstraint(Sketcher.Constraint("Vertical", 4, 3, 14, 3))
sketch1.addConstraint(Sketcher.Constraint("Vertical", 13, 3, 15, 3))
sketch1.addConstraint(Sketcher.Constraint("Vertical", 5, 3, 16, 3))
sketch1.addConstraint(Sketcher.Constraint("Vertical", 6, 3, 17, 3))
sketch1.addConstraint(Sketcher.Constraint("Vertical", 18, 3, 19, 3))
sketch1.addConstraint(Sketcher.Constraint("Vertical", 7, 3, 20, 3))
sketch1.addConstraint(Sketcher.Constraint("Vertical", 8, 3, 21, 3))
sketch1.addConstraint(Sketcher.Constraint("Vertical", 22, 3, 23, 3))
sketch1.addConstraint(Sketcher.Constraint("Vertical", 9, 3, 24, 3))
sketch1.addConstraint(Sketcher.Constraint("Vertical", 10, 3, 25, 3))
sketch1.addConstraint(Sketcher.Constraint("Vertical", 26, 3, 27, 3))
sketch1.addConstraint(Sketcher.Constraint("Vertical", 11, 3, 28, 3))
sketch1.addConstraint(Sketcher.Constraint("Vertical", 12, 3, 29, 3))
sketch1.addConstraint(Sketcher.Constraint("Diameter", 15, 8.0))
sketch1.addConstraint(Sketcher.Constraint("Diameter", 4, 3.7))
sketch1.addConstraint(Sketcher.Constraint("DistanceX", 1, 1, 1, 2, 282.0))
sketch1.addConstraint(Sketcher.Constraint("DistanceY", 0, 2, 0, 1, 122.0))
sketch1.addConstraint(Sketcher.Constraint("DistanceX", 4, 3, -1, 1, 136.0))
sketch1.addConstraint(Sketcher.Constraint("DistanceY", 4, 3, -1, 1, 56.0))
sketch1.addConstraint(Sketcher.Constraint("DistanceX", 5, 3, -1, 1, 120.0))
sketch1.addConstraint(Sketcher.Constraint("DistanceX", 6, 3, -1, 1, 104.0))
sketch1.addConstraint(Sketcher.Constraint("DistanceX", 7, 3, -1, 1, 88.0))
sketch1.addConstraint(Sketcher.Constraint("DistanceX", 8, 3, -1, 1, 72.0))
sketch1.addConstraint(Sketcher.Constraint("DistanceX", 9, 3, -1, 1, 56.0))
sketch1.addConstraint(Sketcher.Constraint("DistanceX", 10, 3, -1, 1, 40.0))
sketch1.addConstraint(Sketcher.Constraint("DistanceX", 11, 3, -1, 1, 24.0))
sketch1.addConstraint(Sketcher.Constraint("DistanceX", 12, 3, -1, 1, 8.0))
sketch1.addConstraint(Sketcher.Constraint("DistanceX", 13, 3, -1, 1, 128.0))
sketch1.addConstraint(Sketcher.Constraint("DistanceY", 13, 3, -1, 1, 8.0))
sketch1.addConstraint(Sketcher.Constraint("DistanceX", 18, 3, -1, 1, 96.0))
sketch1.addConstraint(Sketcher.Constraint("DistanceX", 22, 3, -1, 1, 64.0))
sketch1.addConstraint(Sketcher.Constraint("DistanceX", 26, 3, -1, 1, 32.0))
pad1 = doc.addObject("PartDesign::Pad", "Pad")
body.addObject(pad1)
pad1.Profile = sketch1
pad1.Length = 3

doc.recompute()
